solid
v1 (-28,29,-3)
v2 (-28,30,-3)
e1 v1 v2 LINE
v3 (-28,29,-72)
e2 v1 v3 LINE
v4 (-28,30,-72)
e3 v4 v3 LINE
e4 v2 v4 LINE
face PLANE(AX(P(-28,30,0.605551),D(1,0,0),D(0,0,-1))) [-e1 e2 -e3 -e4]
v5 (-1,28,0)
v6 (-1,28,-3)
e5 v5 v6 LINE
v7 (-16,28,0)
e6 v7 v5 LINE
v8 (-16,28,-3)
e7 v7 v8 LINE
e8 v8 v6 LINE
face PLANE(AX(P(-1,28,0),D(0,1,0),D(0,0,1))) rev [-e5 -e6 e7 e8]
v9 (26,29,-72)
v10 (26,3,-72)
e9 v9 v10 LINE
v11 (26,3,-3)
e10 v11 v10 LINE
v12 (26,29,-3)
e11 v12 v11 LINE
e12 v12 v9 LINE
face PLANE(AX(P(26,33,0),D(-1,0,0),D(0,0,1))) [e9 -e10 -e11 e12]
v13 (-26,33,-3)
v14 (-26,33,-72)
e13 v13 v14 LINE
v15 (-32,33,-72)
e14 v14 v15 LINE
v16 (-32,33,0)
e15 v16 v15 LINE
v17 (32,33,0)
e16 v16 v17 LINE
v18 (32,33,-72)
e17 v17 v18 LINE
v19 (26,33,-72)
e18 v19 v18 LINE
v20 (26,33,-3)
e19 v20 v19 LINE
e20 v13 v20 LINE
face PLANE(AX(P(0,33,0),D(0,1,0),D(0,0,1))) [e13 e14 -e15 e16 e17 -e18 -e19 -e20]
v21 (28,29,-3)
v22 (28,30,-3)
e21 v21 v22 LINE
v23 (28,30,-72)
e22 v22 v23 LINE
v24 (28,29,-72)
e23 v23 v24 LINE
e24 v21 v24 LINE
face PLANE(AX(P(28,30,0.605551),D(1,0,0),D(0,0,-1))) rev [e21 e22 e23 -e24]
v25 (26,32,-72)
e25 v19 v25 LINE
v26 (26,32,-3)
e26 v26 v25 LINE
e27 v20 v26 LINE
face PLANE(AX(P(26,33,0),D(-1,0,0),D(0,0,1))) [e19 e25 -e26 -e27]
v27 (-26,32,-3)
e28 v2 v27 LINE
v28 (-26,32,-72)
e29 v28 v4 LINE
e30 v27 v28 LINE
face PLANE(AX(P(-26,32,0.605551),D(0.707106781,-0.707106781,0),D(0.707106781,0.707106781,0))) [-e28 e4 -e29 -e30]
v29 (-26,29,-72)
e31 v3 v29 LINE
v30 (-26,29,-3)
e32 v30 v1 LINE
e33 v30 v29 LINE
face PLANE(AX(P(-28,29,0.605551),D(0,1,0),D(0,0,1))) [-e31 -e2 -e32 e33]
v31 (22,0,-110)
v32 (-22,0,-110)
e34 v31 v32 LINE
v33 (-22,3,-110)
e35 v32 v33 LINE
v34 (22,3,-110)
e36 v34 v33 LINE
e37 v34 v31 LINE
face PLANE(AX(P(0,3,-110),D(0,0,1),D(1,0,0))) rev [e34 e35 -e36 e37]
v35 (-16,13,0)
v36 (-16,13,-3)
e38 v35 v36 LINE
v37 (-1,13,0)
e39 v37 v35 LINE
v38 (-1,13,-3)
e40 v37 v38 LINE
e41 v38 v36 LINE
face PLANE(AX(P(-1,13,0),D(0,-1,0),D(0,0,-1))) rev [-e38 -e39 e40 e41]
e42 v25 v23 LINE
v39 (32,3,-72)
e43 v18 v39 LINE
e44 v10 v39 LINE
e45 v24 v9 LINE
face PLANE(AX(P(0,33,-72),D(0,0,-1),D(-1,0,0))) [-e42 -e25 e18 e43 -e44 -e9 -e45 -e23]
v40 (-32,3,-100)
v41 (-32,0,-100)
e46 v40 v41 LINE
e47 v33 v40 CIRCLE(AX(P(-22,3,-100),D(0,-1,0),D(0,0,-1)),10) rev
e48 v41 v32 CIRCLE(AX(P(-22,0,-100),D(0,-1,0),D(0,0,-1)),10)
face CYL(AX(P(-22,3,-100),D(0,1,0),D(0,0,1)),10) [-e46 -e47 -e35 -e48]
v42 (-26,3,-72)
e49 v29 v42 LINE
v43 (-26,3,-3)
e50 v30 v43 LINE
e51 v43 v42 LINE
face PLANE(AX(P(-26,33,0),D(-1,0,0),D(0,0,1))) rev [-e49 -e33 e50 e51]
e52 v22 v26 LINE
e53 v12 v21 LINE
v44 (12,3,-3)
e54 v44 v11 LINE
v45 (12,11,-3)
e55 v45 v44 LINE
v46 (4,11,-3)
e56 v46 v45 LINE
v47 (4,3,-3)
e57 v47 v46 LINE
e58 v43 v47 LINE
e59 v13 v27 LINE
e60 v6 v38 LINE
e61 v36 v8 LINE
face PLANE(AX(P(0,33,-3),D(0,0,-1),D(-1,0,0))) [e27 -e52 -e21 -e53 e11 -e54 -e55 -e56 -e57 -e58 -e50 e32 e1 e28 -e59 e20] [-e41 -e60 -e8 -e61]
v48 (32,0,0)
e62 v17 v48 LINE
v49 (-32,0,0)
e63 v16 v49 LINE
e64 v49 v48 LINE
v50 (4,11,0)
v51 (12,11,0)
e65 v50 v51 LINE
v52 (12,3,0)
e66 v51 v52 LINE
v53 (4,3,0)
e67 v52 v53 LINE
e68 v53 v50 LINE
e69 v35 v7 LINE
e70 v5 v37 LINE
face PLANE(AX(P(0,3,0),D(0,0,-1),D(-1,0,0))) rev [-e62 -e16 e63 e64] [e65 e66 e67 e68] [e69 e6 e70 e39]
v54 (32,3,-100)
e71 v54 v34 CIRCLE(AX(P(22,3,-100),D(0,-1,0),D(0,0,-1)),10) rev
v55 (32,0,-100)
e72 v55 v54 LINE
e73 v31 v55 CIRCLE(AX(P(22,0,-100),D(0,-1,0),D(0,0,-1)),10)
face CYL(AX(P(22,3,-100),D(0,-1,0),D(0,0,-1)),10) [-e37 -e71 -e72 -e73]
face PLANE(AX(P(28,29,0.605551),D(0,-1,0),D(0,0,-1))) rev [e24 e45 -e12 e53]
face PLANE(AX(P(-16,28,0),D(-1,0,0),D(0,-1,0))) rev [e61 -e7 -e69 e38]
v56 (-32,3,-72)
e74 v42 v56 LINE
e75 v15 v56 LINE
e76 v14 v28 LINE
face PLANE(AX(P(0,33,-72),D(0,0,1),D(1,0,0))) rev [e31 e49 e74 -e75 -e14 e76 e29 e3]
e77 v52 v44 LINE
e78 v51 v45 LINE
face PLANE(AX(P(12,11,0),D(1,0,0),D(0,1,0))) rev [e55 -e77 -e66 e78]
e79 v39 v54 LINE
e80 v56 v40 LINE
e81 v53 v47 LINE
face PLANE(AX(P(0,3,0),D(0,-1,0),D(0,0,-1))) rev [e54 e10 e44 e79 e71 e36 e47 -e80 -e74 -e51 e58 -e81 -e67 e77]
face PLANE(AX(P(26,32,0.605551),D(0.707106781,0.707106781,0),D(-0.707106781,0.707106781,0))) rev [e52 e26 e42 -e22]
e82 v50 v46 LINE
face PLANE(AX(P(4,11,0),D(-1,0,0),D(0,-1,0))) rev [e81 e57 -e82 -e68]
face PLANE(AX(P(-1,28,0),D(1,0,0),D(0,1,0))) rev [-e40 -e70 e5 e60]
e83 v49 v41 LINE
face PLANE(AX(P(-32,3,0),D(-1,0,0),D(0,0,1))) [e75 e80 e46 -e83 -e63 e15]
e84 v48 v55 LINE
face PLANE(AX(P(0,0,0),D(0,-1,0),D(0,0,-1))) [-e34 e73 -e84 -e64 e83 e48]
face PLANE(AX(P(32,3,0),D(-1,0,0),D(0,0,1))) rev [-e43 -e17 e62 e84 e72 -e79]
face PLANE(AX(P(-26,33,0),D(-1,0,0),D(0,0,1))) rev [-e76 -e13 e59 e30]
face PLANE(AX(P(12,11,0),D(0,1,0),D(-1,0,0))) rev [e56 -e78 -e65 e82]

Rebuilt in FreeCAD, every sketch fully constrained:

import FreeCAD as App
import Part
import Sketcher
from FreeCAD import Vector
Q = App.Units.Quantity


def edges_at(feature, points):
    """Names of the edges that pass closest to the given points."""
    edges = feature.Shape.Edges
    near = lambda p: min(range(len(edges)), key=lambda i: edges[i].distToShape(Part.Vertex(*p))[0])
    return sorted({f"Edge{near(p) + 1}" for p in points})

doc = App.newDocument("Part")
body = doc.addObject("PartDesign::Body", "Body")

sketch1 = body.newObject("Sketcher::SketchObject", "Sketch")
sketch1.AttachmentSupport = (doc.getObject("XZ_Plane"), [""])
sketch1.MapMode = "FlatFace"
sketch1.addGeometry(Part.LineSegment(Vector(0, -110, 0), Vector(0, 0, 0)), False)
sketch1.addGeometry(Part.LineSegment(Vector(0, 0, 0), Vector(32, 0, 0)), False)
sketch1.addGeometry(Part.LineSegment(Vector(32, 0, 0), Vector(32, -110, 0)), False)
sketch1.addGeometry(Part.LineSegment(Vector(32, -110, 0), Vector(0, -110, 0)), False)
sketch1.addConstraint(Sketcher.Constraint("Coincident", 0, 2, 1, 1))
sketch1.addConstraint(Sketcher.Constraint("Coincident", 1, 2, 2, 1))
sketch1.addConstraint(Sketcher.Constraint("Coincident", 2, 2, 3, 1))
sketch1.addConstraint(Sketcher.Constraint("Coincident", 3, 2, 0, 1))
sketch1.addConstraint(Sketcher.Constraint("Vertical", 0))
sketch1.addConstraint(Sketcher.Constraint("Horizontal", 1))
sketch1.addConstraint(Sketcher.Constraint("Vertical", 2))
sketch1.addConstraint(Sketcher.Constraint("Horizontal", 3))
sketch1.addConstraint(Sketcher.Constraint("Coincident", 0, 2, -1, 1))
sketch1.addConstraint(Sketcher.Constraint("DistanceX", 1, 1, 1, 2, Q("32 mm")))
sketch1.addConstraint(Sketcher.Constraint("DistanceY", 0, 1, 0, 2, Q("110 mm")))
pad1 = body.newObject("PartDesign::Pad", "Pad")
pad1.Profile = sketch1
pad1.Length = 3
pad1.Reversed = True

sketch2 = body.newObject("Sketcher::SketchObject", "Sketch001")
sketch2.AttachmentSupport = (doc.getObject("XZ_Plane"), [""])
sketch2.MapMode = "FlatFace"
sketch2.AttachmentOffset = App.Placement(Vector(0, 0, -3), App.Rotation())
sketch2.addGeometry(Part.LineSegment(Vector(0, -3, 0), Vector(0, 0, 0)), False)
sketch2.addGeometry(Part.LineSegment(Vector(0, 0, 0), Vector(32, 0, 0)), False)
sketch2.addGeometry(Part.LineSegment(Vector(32, 0, 0), Vector(32, -72, 0)), False)
sketch2.addGeometry(Part.LineSegment(Vector(32, -72, 0), Vector(26, -72, 0)), False)
sketch2.addGeometry(Part.LineSegment(Vector(26, -72, 0), Vector(26, -3, 0)), False)
sketch2.addGeometry(Part.LineSegment(Vector(26, -3, 0), Vector(0, -3, 0)), False)
sketch2.addConstraint(Sketcher.Constraint("Coincident", 0, 2, 1, 1))
sketch2.addConstraint(Sketcher.Constraint("Coincident", 1, 2, 2, 1))
sketch2.addConstraint(Sketcher.Constraint("Coincident", 2, 2, 3, 1))
sketch2.addConstraint(Sketcher.Constraint("Coincident", 3, 2, 4, 1))
sketch2.addConstraint(Sketcher.Constraint("Coincident", 4, 2, 5, 1))
sketch2.addConstraint(Sketcher.Constraint("Coincident", 5, 2, 0, 1))
sketch2.addConstraint(Sketcher.Constraint("Vertical", 0))
sketch2.addConstraint(Sketcher.Constraint("Horizontal", 1))
sketch2.addConstraint(Sketcher.Constraint("Vertical", 2))
sketch2.addConstraint(Sketcher.Constraint("Horizontal", 3))
sketch2.addConstraint(Sketcher.Constraint("Vertical", 4))
sketch2.addConstraint(Sketcher.Constraint("Horizontal", 5))
sketch2.addConstraint(Sketcher.Constraint("Coincident", 0, 2, -1, 1))
sketch2.addConstraint(Sketcher.Constraint("DistanceX", 1, 1, 1, 2, Q("32 mm")))
sketch2.addConstraint(Sketcher.Constraint("DistanceX", 3, 2, 3, 1, Q("6 mm")))
sketch2.addConstraint(Sketcher.Constraint("DistanceY", 0, 1, 0, 2, Q("3 mm")))
sketch2.addConstraint(Sketcher.Constraint("DistanceY", 2, 2, 2, 1, Q("72 mm")))
pad2 = body.newObject("PartDesign::Pad", "Pad001")
pad2.Profile = sketch2
pad2.Length = 30
pad2.Reversed = True

sketch3 = body.newObject("Sketcher::SketchObject", "Sketch002")
sketch3.AttachmentSupport = (doc.getObject("XY_Plane"), [""])
sketch3.MapMode = "FlatFace"
sketch3.AttachmentOffset = App.Placement(Vector(0, 0, -72), App.Rotation())
sketch3.addGeometry(Part.LineSegment(Vector(26, 32, 0), Vector(28, 30, 0)), False)
sketch3.addGeometry(Part.LineSegment(Vector(28, 30, 0), Vector(28, 29, 0)), False)
sketch3.addGeometry(Part.LineSegment(Vector(28, 29, 0), Vector(26, 29, 0)), False)
sketch3.addGeometry(Part.LineSegment(Vector(26, 29, 0), Vector(26, 32, 0)), False)
sketch3.addConstraint(Sketcher.Constraint("Coincident", 0, 2, 1, 1))
sketch3.addConstraint(Sketcher.Constraint("Coincident", 1, 2, 2, 1))
sketch3.addConstraint(Sketcher.Constraint("Coincident", 2, 2, 3, 1))
sketch3.addConstraint(Sketcher.Constraint("Coincident", 3, 2, 0, 1))
sketch3.addConstraint(Sketcher.Constraint("Vertical", 1))
sketch3.addConstraint(Sketcher.Constraint("Horizontal", 2))
sketch3.addConstraint(Sketcher.Constraint("Vertical", 3))
sketch3.addConstraint(Sketcher.Constraint("DistanceX", 2, 2, 2, 1, Q("2 mm")))
sketch3.addConstraint(Sketcher.Constraint("DistanceY", 1, 2, 1, 1, Q("1 mm")))
sketch3.addConstraint(Sketcher.Constraint("DistanceY", 3, 1, 3, 2, Q("3 mm")))
sketch3.addConstraint(Sketcher.Constraint("DistanceX", -1, 1, 0, 2, Q("28 mm")))
sketch3.addConstraint(Sketcher.Constraint("DistanceY", -1, 1, 0, 2, Q("30 mm")))
pocket1 = body.newObject("PartDesign::Pocket", "Pocket")
pocket1.Profile = sketch3
pocket1.Length = 69
pocket1.Reversed = True
doc.recompute()

fillet = body.newObject("PartDesign::Fillet", "Fillet")
fillet.Base = (pocket1, edges_at(pocket1, [(32, 1.5, -110)]))
fillet.Radius = 10
doc.recompute()

mirrored = body.newObject("PartDesign::Mirrored", "Mirrored")
mirrored.Originals = [pad1, pad2, pocket1]
mirrored.MirrorPlane = (doc.getObject("YZ_Plane"), [""])
body.Tip = mirrored
doc.recompute()

fillet2 = body.newObject("PartDesign::Fillet", "Fillet001")
fillet2.Base = (mirrored, edges_at(mirrored, [(-32, 1.5, -110)]))
fillet2.Radius = 10

sketch4 = body.newObject("Sketcher::SketchObject", "Sketch003")
sketch4.AttachmentSupport = (doc.getObject("XY_Plane"), [""])
sketch4.MapMode = "FlatFace"
sketch4.AttachmentOffset = App.Placement(Vector(0, 0, -3), App.Rotation())
sketch4.addGeometry(Part.LineSegment(Vector(-1, 28, 0), Vector(-1, 13, 0)), False)
sketch4.addGeometry(Part.LineSegment(Vector(-1, 13, 0), Vector(-16, 13, 0)), False)
sketch4.addGeometry(Part.LineSegment(Vector(-16, 13, 0), Vector(-16, 28, 0)), False)
sketch4.addGeometry(Part.LineSegment(Vector(-16, 28, 0), Vector(-1, 28, 0)), False)
sketch4.addGeometry(Part.LineSegment(Vector(12, 11, 0), Vector(12, 3, 0)), False)
sketch4.addGeometry(Part.LineSegment(Vector(12, 3, 0), Vector(4, 3, 0)), False)
sketch4.addGeometry(Part.LineSegment(Vector(4, 3, 0), Vector(4, 11, 0)), False)
sketch4.addGeometry(Part.LineSegment(Vector(4, 11, 0), Vector(12, 11, 0)), False)
sketch4.addConstraint(Sketcher.Constraint("Coincident", 0, 2, 1, 1))
sketch4.addConstraint(Sketcher.Constraint("Coincident", 1, 2, 2, 1))
sketch4.addConstraint(Sketcher.Constraint("Coincident", 2, 2, 3, 1))
sketch4.addConstraint(Sketcher.Constraint("Coincident", 3, 2, 0, 1))
sketch4.addConstraint(Sketcher.Constraint("Coincident", 4, 2, 5, 1))
sketch4.addConstraint(Sketcher.Constraint("Coincident", 5, 2, 6, 1))
sketch4.addConstraint(Sketcher.Constraint("Coincident", 6, 2, 7, 1))
sketch4.addConstraint(Sketcher.Constraint("Coincident", 7, 2, 4, 1))
sketch4.addConstraint(Sketcher.Constraint("Vertical", 0))
sketch4.addConstraint(Sketcher.Constraint("Horizontal", 1))
sketch4.addConstraint(Sketcher.Constraint("Vertical", 2))
sketch4.addConstraint(Sketcher.Constraint("Horizontal", 3))
sketch4.addConstraint(Sketcher.Constraint("Vertical", 4))
sketch4.addConstraint(Sketcher.Constraint("Horizontal", 5))
sketch4.addConstraint(Sketcher.Constraint("Vertical", 6))
sketch4.addConstraint(Sketcher.Constraint("Horizontal", 7))
sketch4.addConstraint(Sketcher.Constraint("Equal", 3, 0))
sketch4.addConstraint(Sketcher.Constraint("Equal", 7, 4))
sketch4.addConstraint(Sketcher.Constraint("DistanceX", 1, 2, 1, 1, Q("15 mm")))
sketch4.addConstraint(Sketcher.Constraint("DistanceX", 5, 2, 5, 1, Q("8 mm")))
sketch4.addConstraint(Sketcher.Constraint("DistanceX", 0, 2, -1, 1, Q("1 mm")))
sketch4.addConstraint(Sketcher.Constraint("DistanceY", -1, 1, 0, 2, Q("13 mm")))
sketch4.addConstraint(Sketcher.Constraint("DistanceX", -1, 1, 4, 2, Q("12 mm")))
sketch4.addConstraint(Sketcher.Constraint("DistanceY", -1, 1, 4, 2, Q("3 mm")))
pocket2 = body.newObject("PartDesign::Pocket", "Pocket001")
pocket2.Profile = sketch4
pocket2.Type = "ThroughAll"
pocket2.Reversed = True

doc.recompute()
